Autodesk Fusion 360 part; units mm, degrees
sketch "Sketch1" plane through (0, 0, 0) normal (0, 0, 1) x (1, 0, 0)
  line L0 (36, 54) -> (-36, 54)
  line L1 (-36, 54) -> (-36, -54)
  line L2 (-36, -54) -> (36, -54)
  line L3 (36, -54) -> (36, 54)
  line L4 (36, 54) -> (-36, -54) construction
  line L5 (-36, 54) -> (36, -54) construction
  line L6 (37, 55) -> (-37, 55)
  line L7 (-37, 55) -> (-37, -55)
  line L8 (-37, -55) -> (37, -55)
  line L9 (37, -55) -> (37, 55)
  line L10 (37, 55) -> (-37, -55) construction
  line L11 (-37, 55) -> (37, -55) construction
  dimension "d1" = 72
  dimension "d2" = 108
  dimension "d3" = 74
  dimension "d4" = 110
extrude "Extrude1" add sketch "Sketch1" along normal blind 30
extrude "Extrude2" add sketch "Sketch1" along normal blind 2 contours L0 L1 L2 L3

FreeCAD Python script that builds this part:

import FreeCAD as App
import Part
import Sketcher

V = App.Vector

doc = App.newDocument("Part")
body = doc.addObject("PartDesign::Body", "Body")

# Sketch on XY plane
sketch1 = body.newObject("Sketcher::SketchObject", "Sketch")
sketch1.AttachmentSupport = (doc.getObject("XY_Plane"), [""])
sketch1.MapMode = "FlatFace"
sketch1.addGeometry([
    Part.LineSegment(V(37, -55, 0), V(37, 55, 0)),  # 0
    Part.LineSegment(V(37, 55, 0), V(-37, 55, 0)),  # 1
    Part.LineSegment(V(-37, 55, 0), V(-37, -55, 0)),  # 2
    Part.LineSegment(V(-37, -55, 0), V(37, -55, 0)),  # 3
    Part.LineSegment(V(-36, 54, 0), V(36, 54, 0)),  # 4
    Part.LineSegment(V(36, 54, 0), V(36, -54, 0)),  # 5
    Part.LineSegment(V(36, -54, 0), V(-36, -54, 0)),  # 6
    Part.LineSegment(V(-36, -54, 0), V(-36, 54, 0)),  # 7
], False)
sketch1.addConstraint([
    Sketcher.Constraint("Coincident", 0, 2, 1, 1),
    Sketcher.Constraint("Coincident", 1, 2, 2, 1),
    Sketcher.Constraint("Coincident", 2, 2, 3, 1),
    Sketcher.Constraint("Coincident", 3, 2, 0, 1),
    Sketcher.Constraint("Coincident", 4, 2, 5, 1),
    Sketcher.Constraint("Coincident", 5, 2, 6, 1),
    Sketcher.Constraint("Coincident", 6, 2, 7, 1),
    Sketcher.Constraint("Coincident", 7, 2, 4, 1),
    Sketcher.Constraint("Vertical", 0),
    Sketcher.Constraint("Horizontal", 1),
    Sketcher.Constraint("Vertical", 2),
    Sketcher.Constraint("Horizontal", 3),
    Sketcher.Constraint("Horizontal", 4),
    Sketcher.Constraint("Vertical", 5),
    Sketcher.Constraint("Horizontal", 6),
    Sketcher.Constraint("Vertical", 7),
    Sketcher.Constraint("Symmetric", 0, 2, 2, 2, -1, 1),
    Sketcher.Constraint("Symmetric", 4, 2, 6, 2, -1, 1),
    Sketcher.Constraint("DistanceX", 1, 2, 1, 1, 74.0),
    Sketcher.Constraint("DistanceX", 4, 1, 4, 2, 72.0),
    Sketcher.Constraint("DistanceY", 0, 1, 0, 2, 110.0),
    Sketcher.Constraint("DistanceY", 5, 2, 5, 1, 108.0),
])
pad1 = body.newObject("PartDesign::Pad", "Pad")
pad1.Profile = sketch1
pad1.Length = 30

# Sketch on XY plane
sketch2 = body.newObject("Sketcher::SketchObject", "Sketch001")
sketch2.AttachmentSupport = (doc.getObject("XY_Plane"), [""])
sketch2.MapMode = "FlatFace"
sketch2.addGeometry([
    Part.LineSegment(V(36, -54, 0), V(36, 54, 0)),
    Part.LineSegment(V(36, 54, 0), V(-36, 54, 0)),
    Part.LineSegment(V(-36, 54, 0), V(-36, -54, 0)),
    Part.LineSegment(V(-36, -54, 0), V(36, -54, 0)),
], False)
sketch2.addConstraint([
    Sketcher.Constraint("Coincident", 0, 2, 1, 1),
    Sketcher.Constraint("Coincident", 1, 2, 2, 1),
    Sketcher.Constraint("Coincident", 2, 2, 3, 1),
    Sketcher.Constraint("Coincident", 3, 2, 0, 1),
    Sketcher.Constraint("Vertical", 0),
    Sketcher.Constraint("Horizontal", 1),
    Sketcher.Constraint("Vertical", 2),
    Sketcher.Constraint("Horizontal", 3),
    Sketcher.Constraint("Symmetric", 0, 2, 2, 2, -1, 1),
    Sketcher.Constraint("DistanceX", 1, 2, 1, 1, 72.0),
    Sketcher.Constraint("DistanceY", 0, 1, 0, 2, 108.0),
])
pad2 = body.newObject("PartDesign::Pad", "Pad001")
pad2.Profile = sketch2
pad2.Length = 2

doc.recompute()
